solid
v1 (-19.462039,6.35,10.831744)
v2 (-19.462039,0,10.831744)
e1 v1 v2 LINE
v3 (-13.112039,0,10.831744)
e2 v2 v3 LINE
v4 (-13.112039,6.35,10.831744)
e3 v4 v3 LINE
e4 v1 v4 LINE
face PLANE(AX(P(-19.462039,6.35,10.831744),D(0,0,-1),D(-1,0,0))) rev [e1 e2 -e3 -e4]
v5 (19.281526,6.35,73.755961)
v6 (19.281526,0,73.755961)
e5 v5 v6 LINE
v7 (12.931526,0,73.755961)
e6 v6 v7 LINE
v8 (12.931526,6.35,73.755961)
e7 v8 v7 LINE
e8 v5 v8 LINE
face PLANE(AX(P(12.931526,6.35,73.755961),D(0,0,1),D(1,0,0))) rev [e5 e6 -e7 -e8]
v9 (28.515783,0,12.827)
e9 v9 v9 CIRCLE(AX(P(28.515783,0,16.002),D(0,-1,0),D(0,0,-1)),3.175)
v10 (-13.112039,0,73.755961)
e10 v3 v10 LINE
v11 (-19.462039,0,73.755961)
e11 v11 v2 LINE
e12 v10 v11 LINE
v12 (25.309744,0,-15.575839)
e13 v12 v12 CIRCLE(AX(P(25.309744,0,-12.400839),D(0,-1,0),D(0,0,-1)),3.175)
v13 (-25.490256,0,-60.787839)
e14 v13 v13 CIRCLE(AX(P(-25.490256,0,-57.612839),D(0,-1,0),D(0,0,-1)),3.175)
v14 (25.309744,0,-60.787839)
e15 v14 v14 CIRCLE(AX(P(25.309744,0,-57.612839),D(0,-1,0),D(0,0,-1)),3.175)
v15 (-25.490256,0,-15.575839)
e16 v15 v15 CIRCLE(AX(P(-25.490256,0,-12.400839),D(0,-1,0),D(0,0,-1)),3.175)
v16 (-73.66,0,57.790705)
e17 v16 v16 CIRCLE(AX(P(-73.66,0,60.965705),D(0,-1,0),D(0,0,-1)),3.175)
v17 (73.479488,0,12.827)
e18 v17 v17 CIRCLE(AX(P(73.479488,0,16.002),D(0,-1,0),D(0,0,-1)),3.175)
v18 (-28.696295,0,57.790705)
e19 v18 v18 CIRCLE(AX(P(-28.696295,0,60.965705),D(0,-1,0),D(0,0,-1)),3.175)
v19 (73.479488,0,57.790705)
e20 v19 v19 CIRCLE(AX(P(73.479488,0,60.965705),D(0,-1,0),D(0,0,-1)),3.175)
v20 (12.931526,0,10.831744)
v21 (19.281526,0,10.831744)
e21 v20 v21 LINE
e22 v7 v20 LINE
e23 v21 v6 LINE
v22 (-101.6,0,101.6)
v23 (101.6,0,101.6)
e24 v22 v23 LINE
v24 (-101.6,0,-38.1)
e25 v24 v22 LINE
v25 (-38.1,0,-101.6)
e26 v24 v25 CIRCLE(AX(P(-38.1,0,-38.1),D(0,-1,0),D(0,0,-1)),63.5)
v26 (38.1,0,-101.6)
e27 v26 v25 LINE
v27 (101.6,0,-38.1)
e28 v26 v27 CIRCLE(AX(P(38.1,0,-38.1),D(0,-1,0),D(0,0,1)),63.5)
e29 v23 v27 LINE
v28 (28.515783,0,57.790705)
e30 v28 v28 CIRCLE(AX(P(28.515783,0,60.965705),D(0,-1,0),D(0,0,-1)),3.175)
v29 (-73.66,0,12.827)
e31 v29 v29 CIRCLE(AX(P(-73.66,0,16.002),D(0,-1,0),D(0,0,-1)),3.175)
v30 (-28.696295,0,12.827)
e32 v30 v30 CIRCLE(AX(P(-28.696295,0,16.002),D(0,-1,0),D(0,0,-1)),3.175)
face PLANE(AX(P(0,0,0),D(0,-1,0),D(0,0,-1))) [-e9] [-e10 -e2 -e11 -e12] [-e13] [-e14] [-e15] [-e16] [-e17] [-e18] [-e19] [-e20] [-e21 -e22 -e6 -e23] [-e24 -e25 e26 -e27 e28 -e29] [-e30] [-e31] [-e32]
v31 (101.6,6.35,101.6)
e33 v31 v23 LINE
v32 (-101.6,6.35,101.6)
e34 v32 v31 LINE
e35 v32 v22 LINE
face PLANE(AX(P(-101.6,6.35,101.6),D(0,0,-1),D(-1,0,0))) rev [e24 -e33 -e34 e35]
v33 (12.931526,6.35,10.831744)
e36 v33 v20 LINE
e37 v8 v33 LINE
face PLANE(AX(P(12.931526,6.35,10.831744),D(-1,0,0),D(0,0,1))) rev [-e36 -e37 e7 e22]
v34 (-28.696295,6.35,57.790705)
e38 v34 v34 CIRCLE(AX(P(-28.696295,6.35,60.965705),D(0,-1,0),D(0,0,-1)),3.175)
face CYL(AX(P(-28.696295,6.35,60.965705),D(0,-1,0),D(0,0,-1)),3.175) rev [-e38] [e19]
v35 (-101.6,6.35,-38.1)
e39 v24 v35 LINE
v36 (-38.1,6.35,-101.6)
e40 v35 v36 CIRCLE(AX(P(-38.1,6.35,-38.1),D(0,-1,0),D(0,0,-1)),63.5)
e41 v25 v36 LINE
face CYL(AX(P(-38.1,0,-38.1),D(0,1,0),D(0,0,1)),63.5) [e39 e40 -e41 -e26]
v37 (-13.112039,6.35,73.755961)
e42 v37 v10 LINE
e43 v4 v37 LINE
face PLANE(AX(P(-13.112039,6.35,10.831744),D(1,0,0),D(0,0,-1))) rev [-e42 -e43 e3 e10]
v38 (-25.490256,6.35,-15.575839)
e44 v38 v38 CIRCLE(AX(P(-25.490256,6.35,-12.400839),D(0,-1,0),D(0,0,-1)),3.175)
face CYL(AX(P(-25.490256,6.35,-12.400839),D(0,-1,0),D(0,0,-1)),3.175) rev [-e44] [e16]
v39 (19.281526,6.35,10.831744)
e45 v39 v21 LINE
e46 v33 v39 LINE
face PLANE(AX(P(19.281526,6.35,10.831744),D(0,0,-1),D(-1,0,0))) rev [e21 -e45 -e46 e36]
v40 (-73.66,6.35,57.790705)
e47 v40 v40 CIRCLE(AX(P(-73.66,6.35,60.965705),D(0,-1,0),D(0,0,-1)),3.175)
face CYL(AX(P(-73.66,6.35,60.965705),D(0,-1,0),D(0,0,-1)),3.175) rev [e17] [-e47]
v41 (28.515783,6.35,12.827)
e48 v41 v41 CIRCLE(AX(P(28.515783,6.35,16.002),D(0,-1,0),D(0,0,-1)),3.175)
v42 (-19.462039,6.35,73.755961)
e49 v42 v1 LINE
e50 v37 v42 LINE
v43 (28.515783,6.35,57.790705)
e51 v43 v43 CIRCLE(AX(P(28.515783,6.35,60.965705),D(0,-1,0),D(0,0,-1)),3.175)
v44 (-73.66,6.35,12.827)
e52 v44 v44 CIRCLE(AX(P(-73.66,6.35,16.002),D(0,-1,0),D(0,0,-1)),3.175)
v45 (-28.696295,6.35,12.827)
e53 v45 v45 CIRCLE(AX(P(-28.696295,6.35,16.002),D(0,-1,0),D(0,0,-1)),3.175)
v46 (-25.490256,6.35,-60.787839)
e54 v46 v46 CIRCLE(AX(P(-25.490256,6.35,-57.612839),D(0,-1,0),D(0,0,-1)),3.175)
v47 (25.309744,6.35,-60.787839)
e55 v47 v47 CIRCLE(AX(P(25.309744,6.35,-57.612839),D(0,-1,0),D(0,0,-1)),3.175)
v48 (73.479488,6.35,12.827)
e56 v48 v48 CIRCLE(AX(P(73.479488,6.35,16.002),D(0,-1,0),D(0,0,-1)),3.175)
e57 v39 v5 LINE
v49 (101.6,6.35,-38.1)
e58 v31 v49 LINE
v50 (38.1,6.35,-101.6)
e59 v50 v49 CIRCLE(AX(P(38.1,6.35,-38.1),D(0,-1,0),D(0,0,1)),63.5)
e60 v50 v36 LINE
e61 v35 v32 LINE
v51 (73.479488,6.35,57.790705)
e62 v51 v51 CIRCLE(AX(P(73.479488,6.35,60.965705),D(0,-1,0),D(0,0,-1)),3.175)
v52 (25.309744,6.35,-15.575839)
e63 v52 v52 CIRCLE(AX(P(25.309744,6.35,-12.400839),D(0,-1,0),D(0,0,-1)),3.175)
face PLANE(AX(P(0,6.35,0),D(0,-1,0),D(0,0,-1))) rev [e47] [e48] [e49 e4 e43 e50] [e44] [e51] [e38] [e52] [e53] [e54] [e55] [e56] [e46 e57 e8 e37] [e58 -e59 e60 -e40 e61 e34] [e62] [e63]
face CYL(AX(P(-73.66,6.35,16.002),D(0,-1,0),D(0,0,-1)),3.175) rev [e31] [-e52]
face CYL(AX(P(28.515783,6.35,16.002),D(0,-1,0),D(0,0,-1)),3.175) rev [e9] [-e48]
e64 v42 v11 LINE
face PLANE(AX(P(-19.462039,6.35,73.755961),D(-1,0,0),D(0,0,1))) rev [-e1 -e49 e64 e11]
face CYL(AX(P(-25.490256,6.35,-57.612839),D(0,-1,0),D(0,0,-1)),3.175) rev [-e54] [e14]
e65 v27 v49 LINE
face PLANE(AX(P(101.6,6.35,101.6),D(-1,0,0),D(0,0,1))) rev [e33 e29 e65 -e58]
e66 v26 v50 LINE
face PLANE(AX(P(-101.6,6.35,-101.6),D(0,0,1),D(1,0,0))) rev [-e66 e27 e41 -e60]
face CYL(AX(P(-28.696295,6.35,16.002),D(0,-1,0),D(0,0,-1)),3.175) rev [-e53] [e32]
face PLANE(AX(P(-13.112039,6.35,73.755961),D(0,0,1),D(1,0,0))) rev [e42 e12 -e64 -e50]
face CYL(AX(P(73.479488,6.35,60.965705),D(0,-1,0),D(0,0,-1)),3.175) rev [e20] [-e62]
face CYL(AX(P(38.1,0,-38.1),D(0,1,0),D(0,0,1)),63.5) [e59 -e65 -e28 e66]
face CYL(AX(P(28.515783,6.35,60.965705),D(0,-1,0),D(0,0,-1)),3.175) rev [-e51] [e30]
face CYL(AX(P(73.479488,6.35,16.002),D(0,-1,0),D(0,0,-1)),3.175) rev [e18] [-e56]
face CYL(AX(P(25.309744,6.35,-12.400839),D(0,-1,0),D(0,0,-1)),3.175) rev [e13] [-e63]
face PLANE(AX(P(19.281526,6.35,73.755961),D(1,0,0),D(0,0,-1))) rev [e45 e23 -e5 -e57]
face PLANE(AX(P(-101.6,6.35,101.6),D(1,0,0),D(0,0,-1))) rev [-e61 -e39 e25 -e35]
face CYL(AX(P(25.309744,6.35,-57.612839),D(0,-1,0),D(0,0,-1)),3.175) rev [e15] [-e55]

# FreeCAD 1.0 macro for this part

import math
import FreeCAD as App
import Part
import Sketcher
from FreeCAD import Vector
Q = App.Units.Quantity


def add_polygon(sketch, points):
    """Adds a closed chain of lines whose ends are joined by coincident constraints."""
    first, n = sketch.GeometryCount, len(points)
    for a, b in zip(points, points[1:] + points[:1]):
        sketch.addGeometry(Part.LineSegment(App.Vector(*a, 0), App.Vector(*b, 0)), False)
    for i in range(n):
        sketch.addConstraint(Sketcher.Constraint("Coincident", first + i, 2, first + (i + 1) % n, 1))

doc = App.newDocument("Part")
body = doc.addObject("PartDesign::Body", "Body")

# Sketch on XZ plane
sketch1 = body.newObject("Sketcher::SketchObject", "Sketch")
sketch1.AttachmentSupport = (doc.getObject("XZ_Plane"), [""])
sketch1.MapMode = "FlatFace"
add_polygon(sketch1, [(-102, -102), (-102, 102), (102, 102), (102, -102)])  # lines 0-3
sketch1.addConstraint(Sketcher.Constraint("Vertical", 0))
sketch1.addConstraint(Sketcher.Constraint("Horizontal", 1))
sketch1.addConstraint(Sketcher.Constraint("Vertical", 2))
sketch1.addConstraint(Sketcher.Constraint("Horizontal", 3))
sketch1.addConstraint(Sketcher.Constraint("Symmetric", 0, 2, 2, 2, -1, 1))
sketch1.addConstraint(Sketcher.Constraint("Equal", 3, 0))
sketch1.addConstraint(Sketcher.Constraint("DistanceX", 1, 1, 1, 2, Q("8 in")))
pad1 = body.newObject("PartDesign::Pad", "Pad")
pad1.Profile = sketch1
pad1.Length = Q("0.25 in")
pad1.Reversed = True

# Sketch on XZ plane
sketch2 = body.newObject("Sketcher::SketchObject", "Sketch001")
sketch2.AttachmentSupport = (doc.getObject("XZ_Plane"), [""])
sketch2.MapMode = "FlatFace"
sketch2.AttachmentOffset = App.Placement(Vector(0, 0, -0.25 * 25.4), App.Rotation())
sketch2.addGeometry(Part.LineSegment(Vector(102, -38, 0), Vector(102, -102, 0)), False)
sketch2.addGeometry(Part.LineSegment(Vector(102, -102, 0), Vector(38, -102, 0)), False)
sketch2.addGeometry(Part.ArcOfCircle(Part.Circle(Vector(38, -38, 0), Vector(0, 0, 1), 64), math.radians(-90), math.radians(0)), False)
sketch2.addGeometry(Part.LineSegment(Vector(-38, -102, 0), Vector(-102, -102, 0)), False)
sketch2.addGeometry(Part.LineSegment(Vector(-102, -102, 0), Vector(-102, -38, 0)), False)
sketch2.addGeometry(Part.ArcOfCircle(Part.Circle(Vector(-38, -38, 0), Vector(0, 0, 1), 64), math.radians(-180), math.radians(-90)), False)
sketch2.addConstraint(Sketcher.Constraint("Coincident", 0, 2, 1, 1))
sketch2.addConstraint(Sketcher.Constraint("Tangent", 1, 2, 2, 1))
sketch2.addConstraint(Sketcher.Constraint("Tangent", 2, 2, 0, 1))
sketch2.addConstraint(Sketcher.Constraint("Coincident", 3, 2, 4, 1))
sketch2.addConstraint(Sketcher.Constraint("Tangent", 4, 2, 5, 1))
sketch2.addConstraint(Sketcher.Constraint("Tangent", 5, 2, 3, 1))
sketch2.addConstraint(Sketcher.Constraint("Vertical", 0))
sketch2.addConstraint(Sketcher.Constraint("Horizontal", 1))
sketch2.addConstraint(Sketcher.Constraint("Horizontal", 3))
sketch2.addConstraint(Sketcher.Constraint("Vertical", 4))
sketch2.addConstraint(Sketcher.Constraint("Equal", 2, 5))
sketch2.addConstraint(Sketcher.Constraint("Symmetric", 2, 3, 5, 3, -2))
sketch2.addConstraint(Sketcher.Constraint("Radius", 2, Q("2.5 in")))
sketch2.addConstraint(Sketcher.Constraint("DistanceX", -1, 1, 0, 2, Q("4 in")))
sketch2.addConstraint(Sketcher.Constraint("DistanceY", 0, 2, -1, 1, Q("4 in")))
pocket1 = body.newObject("PartDesign::Pocket", "Pocket")
pocket1.Profile = sketch2
pocket1.Type = "ThroughAll"
pocket1.Reversed = True

# Sketch on XZ plane
sketch3 = body.newObject("Sketcher::SketchObject", "Sketch002")
sketch3.AttachmentSupport = (doc.getObject("XZ_Plane"), [""])
sketch3.MapMode = "FlatFace"
sketch3.addGeometry(Part.Circle(Vector(25.3, -12.4, 0), Vector(0, 0, 1), 3.2), False)  # 0
sketch3.addGeometry(Part.Circle(Vector(-25.5, -12.4, 0), Vector(0, 0, 1), 3.2), False)  # 1
sketch3.addGeometry(Part.Circle(Vector(-25.5, -57.6, 0), Vector(0, 0, 1), 3.2), False)  # 2
sketch3.addGeometry(Part.Circle(Vector(25.3, -57.6, 0), Vector(0, 0, 1), 3.2), False)  # 3
sketch3.addGeometry(Part.Circle(Vector(-73.7, 16, 0), Vector(0, 0, 1), 3.2), False)  # 4
sketch3.addGeometry(Part.Circle(Vector(-73.7, 61, 0), Vector(0, 0, 1), 3.2), False)  # 5
sketch3.addGeometry(Part.Circle(Vector(-28.7, 61, 0), Vector(0, 0, 1), 3.2), False)  # 6
sketch3.addGeometry(Part.Circle(Vector(-28.7, 16, 0), Vector(0, 0, 1), 3.2), False)  # 7
sketch3.addGeometry(Part.Circle(Vector(28.5, 61, 0), Vector(0, 0, 1), 3.2), False)  # 8
sketch3.addGeometry(Part.Circle(Vector(73.5, 61, 0), Vector(0, 0, 1), 3.2), False)  # 9
sketch3.addGeometry(Part.Circle(Vector(73.5, 16, 0), Vector(0, 0, 1), 3.2), False)  # 10
sketch3.addGeometry(Part.Circle(Vector(28.5, 16, 0), Vector(0, 0, 1), 3.2), False)  # 11
add_polygon(sketch3, [(-19.5, 73.8), (-19.5, 10.8), (-13.1, 10.8), (-13.1, 73.8)])  # lines 12-15
add_polygon(sketch3, [(12.9, 73.8), (12.9, 10.8), (19.3, 10.8), (19.3, 73.8)])  # lines 16-19
sketch3.addConstraint(Sketcher.Constraint("Vertical", 12))
sketch3.addConstraint(Sketcher.Constraint("Horizontal", 13))
sketch3.addConstraint(Sketcher.Constraint("Vertical", 14))
sketch3.addConstraint(Sketcher.Constraint("Horizontal", 15))
sketch3.addConstraint(Sketcher.Constraint("Vertical", 16))
sketch3.addConstraint(Sketcher.Constraint("Horizontal", 17))
sketch3.addConstraint(Sketcher.Constraint("Vertical", 18))
sketch3.addConstraint(Sketcher.Constraint("Horizontal", 19))
sketch3.addConstraint(Sketcher.Constraint("Equal", 0, 1))
sketch3.addConstraint(Sketcher.Constraint("Equal", 1, 2))
sketch3.addConstraint(Sketcher.Constraint("Equal", 2, 3))
sketch3.addConstraint(Sketcher.Constraint("Equal", 3, 4))
sketch3.addConstraint(Sketcher.Constraint("Equal", 4, 5))
sketch3.addConstraint(Sketcher.Constraint("Equal", 5, 6))
sketch3.addConstraint(Sketcher.Constraint("Equal", 6, 7))
sketch3.addConstraint(Sketcher.Constraint("Equal", 7, 8))
sketch3.addConstraint(Sketcher.Constraint("Equal", 8, 9))
sketch3.addConstraint(Sketcher.Constraint("Equal", 9, 10))
sketch3.addConstraint(Sketcher.Constraint("Equal", 10, 11))
sketch3.addConstraint(Sketcher.Constraint("Horizontal", 0, 3, 1, 3))
sketch3.addConstraint(Sketcher.Constraint("Horizontal", 2, 3, 3, 3))
sketch3.addConstraint(Sketcher.Constraint("Horizontal", 5, 3, 6, 3))
sketch3.addConstraint(Sketcher.Constraint("Horizontal", 4, 3, 7, 3))
sketch3.addConstraint(Sketcher.Constraint("Horizontal", 6, 3, 8, 3))
sketch3.addConstraint(Sketcher.Constraint("Horizontal", 8, 3, 9, 3))
sketch3.addConstraint(Sketcher.Constraint("Horizontal", 7, 3, 10, 3))
sketch3.addConstraint(Sketcher.Constraint("Horizontal", 10, 3, 11, 3))
sketch3.addConstraint(Sketcher.Constraint("Horizontal", 13, 2, 16, 2))
sketch3.addConstraint(Sketcher.Constraint("Horizontal", 15, 2, 18, 2))
sketch3.addConstraint(Sketcher.Constraint("Vertical", 1, 3, 2, 3))
sketch3.addConstraint(Sketcher.Constraint("Vertical", 0, 3, 3, 3))
sketch3.addConstraint(Sketcher.Constraint("Vertical", 4, 3, 5, 3))
sketch3.addConstraint(Sketcher.Constraint("Vertical", 6, 3, 7, 3))
sketch3.addConstraint(Sketcher.Constraint("Vertical", 9, 3, 10, 3))
sketch3.addConstraint(Sketcher.Constraint("Vertical", 8, 3, 11, 3))
sketch3.addConstraint(Sketcher.Constraint("Equal", 15, 17))
sketch3.addConstraint(Sketcher.Constraint("Diameter", 0, Q("0.25 in")))
sketch3.addConstraint(Sketcher.Constraint("DistanceX", 1, 3, 0, 3, Q("2 in")))
sketch3.addConstraint(Sketcher.Constraint("DistanceX", 13, 1, 13, 2, Q("0.25 in")))
sketch3.addConstraint(Sketcher.Constraint("DistanceX", 4, 3, -1, 1, Q("2.9 in")))
sketch3.addConstraint(Sketcher.Constraint("DistanceY", -1, 1, 4, 3, Q("0.63 in")))
sketch3.addConstraint(Sketcher.Constraint("DistanceY", 2, 3, 1, 3, Q("1.78 in")))
sketch3.addConstraint(Sketcher.Constraint("DistanceY", 12, 2, 12, 1, 62.924217))
sketch3.addConstraint(Sketcher.Constraint("DistanceY", 0, 3, -1, 1, 12.400839))
sketch3.addConstraint(Sketcher.Constraint("DistanceX", 12, 2, -1, 1, 19.462039))
sketch3.addConstraint(Sketcher.Constraint("DistanceY", -1, 1, 14, 2, 73.755961))
sketch3.addConstraint(Sketcher.Constraint("DistanceX", 6, 3, 1, 3, 3.206039))
sketch3.addConstraint(Sketcher.Constraint("DistanceX", 0, 3, 8, 3, 3.206039))
sketch3.addConstraint(Sketcher.Constraint("DistanceX", 12, 2, 11, 3, 47.977821))
sketch3.addConstraint(Sketcher.Constraint("DistanceY", 12, 2, 6, 3, 50.133961))
sketch3.addConstraint(Sketcher.Constraint("DistanceX", 7, 3, 16, 2, 41.627821))
sketch3.addConstraint(Sketcher.Constraint("DistanceX", 18, 2, 9, 3, 54.197961))
pocket2 = body.newObject("PartDesign::Pocket", "Pocket001")
pocket2.Profile = sketch3
pocket2.Type = "ThroughAll"

doc.recompute()
